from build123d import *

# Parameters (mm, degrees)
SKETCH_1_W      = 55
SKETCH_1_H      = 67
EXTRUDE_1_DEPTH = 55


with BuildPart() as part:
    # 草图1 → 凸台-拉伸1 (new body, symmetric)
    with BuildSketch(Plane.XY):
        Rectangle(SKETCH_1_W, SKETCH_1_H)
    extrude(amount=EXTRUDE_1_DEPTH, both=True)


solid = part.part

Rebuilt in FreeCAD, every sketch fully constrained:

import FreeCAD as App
import Part
import Sketcher


def add_polygon(sketch, points):
    """Adds a closed chain of lines whose ends are joined by coincident constraints."""
    first, n = sketch.GeometryCount, len(points)
    for a, b in zip(points, points[1:] + points[:1]):
        sketch.addGeometry(Part.LineSegment(App.Vector(*a, 0), App.Vector(*b, 0)), False)
    for i in range(n):
        sketch.addConstraint(Sketcher.Constraint("Coincident", first + i, 2, first + (i + 1) % n, 1))

doc = App.newDocument("Part")
body = doc.addObject("PartDesign::Body", "Body")

# Sketch on XY plane
sketch1 = body.newObject("Sketcher::SketchObject", "Sketch")
sketch1.AttachmentSupport = (doc.getObject("XY_Plane"), [""])
sketch1.MapMode = "FlatFace"
add_polygon(sketch1, [(-27.5, 33.5), (-27.5, -33.5), (27.5, -33.5), (27.5, 33.5)])  # lines 0-3
sketch1.addConstraint([
    Sketcher.Constraint("Vertical", 0),
    Sketcher.Constraint("Horizontal", 1),
    Sketcher.Constraint("Vertical", 2),
    Sketcher.Constraint("Horizontal", 3),
    Sketcher.Constraint("Symmetric", 0, 2, 2, 2, -1, 1),
    Sketcher.Constraint("DistanceX", 1, 1, 1, 2, 55.0),
    Sketcher.Constraint("DistanceY", 0, 2, 0, 1, 67.0),
])
pad1 = body.newObject("PartDesign::Pad", "Pad")
pad1.Profile = sketch1
pad1.Length = 110
pad1.Midplane = True

doc.recompute()
